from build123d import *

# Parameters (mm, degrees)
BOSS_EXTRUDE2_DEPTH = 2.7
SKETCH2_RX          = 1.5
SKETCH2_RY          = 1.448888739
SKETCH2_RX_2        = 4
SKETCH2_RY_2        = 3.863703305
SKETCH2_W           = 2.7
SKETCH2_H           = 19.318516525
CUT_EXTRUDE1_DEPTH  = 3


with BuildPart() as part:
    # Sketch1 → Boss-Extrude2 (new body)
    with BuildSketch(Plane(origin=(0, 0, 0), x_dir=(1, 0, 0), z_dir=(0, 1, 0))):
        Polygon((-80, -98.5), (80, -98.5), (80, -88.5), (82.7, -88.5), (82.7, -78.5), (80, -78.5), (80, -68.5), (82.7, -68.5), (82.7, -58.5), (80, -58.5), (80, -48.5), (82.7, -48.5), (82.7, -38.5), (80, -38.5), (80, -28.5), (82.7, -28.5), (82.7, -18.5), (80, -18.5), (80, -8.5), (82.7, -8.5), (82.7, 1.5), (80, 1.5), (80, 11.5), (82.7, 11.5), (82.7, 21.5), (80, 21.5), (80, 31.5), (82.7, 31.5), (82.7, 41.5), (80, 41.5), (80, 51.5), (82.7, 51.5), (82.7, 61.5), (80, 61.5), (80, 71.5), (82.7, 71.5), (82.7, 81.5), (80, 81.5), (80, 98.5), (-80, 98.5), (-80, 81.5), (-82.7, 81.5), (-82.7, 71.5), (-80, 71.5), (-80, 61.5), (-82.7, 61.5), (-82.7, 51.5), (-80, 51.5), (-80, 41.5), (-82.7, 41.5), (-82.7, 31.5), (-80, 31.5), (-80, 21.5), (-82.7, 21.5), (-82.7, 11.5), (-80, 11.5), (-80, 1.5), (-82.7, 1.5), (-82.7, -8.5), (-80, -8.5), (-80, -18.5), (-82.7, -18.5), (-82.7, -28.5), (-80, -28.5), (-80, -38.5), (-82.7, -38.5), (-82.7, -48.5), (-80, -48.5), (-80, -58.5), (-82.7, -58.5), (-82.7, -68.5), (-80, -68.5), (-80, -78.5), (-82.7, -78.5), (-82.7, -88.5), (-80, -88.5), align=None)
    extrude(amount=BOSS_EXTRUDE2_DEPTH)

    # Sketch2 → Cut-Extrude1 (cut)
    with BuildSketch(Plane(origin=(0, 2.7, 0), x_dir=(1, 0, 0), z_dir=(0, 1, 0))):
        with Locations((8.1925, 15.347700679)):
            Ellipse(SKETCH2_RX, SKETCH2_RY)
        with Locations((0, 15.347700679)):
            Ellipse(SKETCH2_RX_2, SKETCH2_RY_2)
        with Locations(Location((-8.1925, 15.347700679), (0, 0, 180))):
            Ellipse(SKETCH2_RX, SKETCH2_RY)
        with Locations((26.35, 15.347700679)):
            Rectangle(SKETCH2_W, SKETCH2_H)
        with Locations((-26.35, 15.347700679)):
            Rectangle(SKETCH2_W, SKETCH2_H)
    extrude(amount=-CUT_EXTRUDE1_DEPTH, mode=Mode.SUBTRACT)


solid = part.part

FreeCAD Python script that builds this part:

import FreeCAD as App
import Part
import Sketcher
from FreeCAD import Vector
Q = App.Units.Quantity

doc = App.newDocument("Part")
body = doc.addObject("PartDesign::Body", "Body")

# Sketch on XZ plane
sketch1 = body.newObject("Sketcher::SketchObject", "Sketch")
sketch1.AttachmentSupport = (doc.getObject("XZ_Plane"), [""])
sketch1.MapMode = "FlatFace"
sketch1.addGeometry([
    Part.LineSegment(Vector(-80, 98.5, 0), Vector(80, 98.5, 0)),  # 0
    Part.LineSegment(Vector(80, 98.5, 0), Vector(80, 88.5, 0)),  # 1
    Part.LineSegment(Vector(80, 88.5, 0), Vector(82.7, 88.5, 0)),  # 2
    Part.LineSegment(Vector(82.7, 88.5, 0), Vector(82.7, 78.5, 0)),  # 3
    Part.LineSegment(Vector(82.7, 78.5, 0), Vector(80, 78.5, 0)),  # 4
    Part.LineSegment(Vector(80, 78.5, 0), Vector(80, 68.5, 0)),  # 5
    Part.LineSegment(Vector(80, 68.5, 0), Vector(82.7, 68.5, 0)),  # 6
    Part.LineSegment(Vector(82.7, 68.5, 0), Vector(82.7, 58.5, 0)),  # 7
    Part.LineSegment(Vector(82.7, 58.5, 0), Vector(80, 58.5, 0)),  # 8
    Part.LineSegment(Vector(80, 58.5, 0), Vector(80, 48.5, 0)),  # 9
    Part.LineSegment(Vector(80, 48.5, 0), Vector(82.7, 48.5, 0)),  # 10
    Part.LineSegment(Vector(82.7, 48.5, 0), Vector(82.7, 38.5, 0)),  # 11
    Part.LineSegment(Vector(82.7, 38.5, 0), Vector(80, 38.5, 0)),  # 12
    Part.LineSegment(Vector(80, 38.5, 0), Vector(80, 28.5, 0)),  # 13
    Part.LineSegment(Vector(80, 28.5, 0), Vector(82.7, 28.5, 0)),  # 14
    Part.LineSegment(Vector(82.7, 28.5, 0), Vector(82.7, 18.5, 0)),  # 15
    Part.LineSegment(Vector(82.7, 18.5, 0), Vector(80, 18.5, 0)),  # 16
    Part.LineSegment(Vector(80, 18.5, 0), Vector(80, 8.5, 0)),  # 17
    Part.LineSegment(Vector(80, 8.5, 0), Vector(82.7, 8.5, 0)),  # 18
    Part.LineSegment(Vector(82.7, 8.5, 0), Vector(82.7, -1.5, 0)),  # 19
    Part.LineSegment(Vector(82.7, -1.5, 0), Vector(80, -1.5, 0)),  # 20
    Part.LineSegment(Vector(80, -1.5, 0), Vector(80, -11.5, 0)),  # 21
    Part.LineSegment(Vector(80, -11.5, 0), Vector(82.7, -11.5, 0)),  # 22
    Part.LineSegment(Vector(82.7, -11.5, 0), Vector(82.7, -21.5, 0)),  # 23
    Part.LineSegment(Vector(82.7, -21.5, 0), Vector(80, -21.5, 0)),  # 24
    Part.LineSegment(Vector(80, -21.5, 0), Vector(80, -31.5, 0)),  # 25
    Part.LineSegment(Vector(80, -31.5, 0), Vector(82.7, -31.5, 0)),  # 26
    Part.LineSegment(Vector(82.7, -31.5, 0), Vector(82.7, -41.5, 0)),  # 27
    Part.LineSegment(Vector(82.7, -41.5, 0), Vector(80, -41.5, 0)),  # 28
    Part.LineSegment(Vector(80, -41.5, 0), Vector(80, -51.5, 0)),  # 29
    Part.LineSegment(Vector(80, -51.5, 0), Vector(82.7, -51.5, 0)),  # 30
    Part.LineSegment(Vector(82.7, -51.5, 0), Vector(82.7, -61.5, 0)),  # 31
    Part.LineSegment(Vector(82.7, -61.5, 0), Vector(80, -61.5, 0)),  # 32
    Part.LineSegment(Vector(80, -61.5, 0), Vector(80, -71.5, 0)),  # 33
    Part.LineSegment(Vector(80, -71.5, 0), Vector(82.7, -71.5, 0)),  # 34
    Part.LineSegment(Vector(82.7, -71.5, 0), Vector(82.7, -81.5, 0)),  # 35
    Part.LineSegment(Vector(82.7, -81.5, 0), Vector(80, -81.5, 0)),  # 36
    Part.LineSegment(Vector(80, -81.5, 0), Vector(80, -98.5, 0)),  # 37
    Part.LineSegment(Vector(80, -98.5, 0), Vector(-80, -98.5, 0)),  # 38
    Part.LineSegment(Vector(-80, -98.5, 0), Vector(-80, -81.5, 0)),  # 39
    Part.LineSegment(Vector(-80, -81.5, 0), Vector(-82.7, -81.5, 0)),  # 40
    Part.LineSegment(Vector(-82.7, -81.5, 0), Vector(-82.7, -71.5, 0)),  # 41
    Part.LineSegment(Vector(-82.7, -71.5, 0), Vector(-80, -71.5, 0)),  # 42
    Part.LineSegment(Vector(-80, -71.5, 0), Vector(-80, -61.5, 0)),  # 43
    Part.LineSegment(Vector(-80, -61.5, 0), Vector(-82.7, -61.5, 0)),  # 44
    Part.LineSegment(Vector(-82.7, -61.5, 0), Vector(-82.7, -51.5, 0)),  # 45
    Part.LineSegment(Vector(-82.7, -51.5, 0), Vector(-80, -51.5, 0)),  # 46
    Part.LineSegment(Vector(-80, -51.5, 0), Vector(-80, -41.5, 0)),  # 47
    Part.LineSegment(Vector(-80, -41.5, 0), Vector(-82.7, -41.5, 0)),  # 48
    Part.LineSegment(Vector(-82.7, -41.5, 0), Vector(-82.7, -31.5, 0)),  # 49
    Part.LineSegment(Vector(-82.7, -31.5, 0), Vector(-80, -31.5, 0)),  # 50
    Part.LineSegment(Vector(-80, -31.5, 0), Vector(-80, -21.5, 0)),  # 51
    Part.LineSegment(Vector(-80, -21.5, 0), Vector(-82.7, -21.5, 0)),  # 52
    Part.LineSegment(Vector(-82.7, -21.5, 0), Vector(-82.7, -11.5, 0)),  # 53
    Part.LineSegment(Vector(-82.7, -11.5, 0), Vector(-80, -11.5, 0)),  # 54
    Part.LineSegment(Vector(-80, -11.5, 0), Vector(-80, -1.5, 0)),  # 55
    Part.LineSegment(Vector(-80, -1.5, 0), Vector(-82.7, -1.5, 0)),  # 56
    Part.LineSegment(Vector(-82.7, -1.5, 0), Vector(-82.7, 8.5, 0)),  # 57
    Part.LineSegment(Vector(-82.7, 8.5, 0), Vector(-80, 8.5, 0)),  # 58
    Part.LineSegment(Vector(-80, 8.5, 0), Vector(-80, 18.5, 0)),  # 59
    Part.LineSegment(Vector(-80, 18.5, 0), Vector(-82.7, 18.5, 0)),  # 60
    Part.LineSegment(Vector(-82.7, 18.5, 0), Vector(-82.7, 28.5, 0)),  # 61
    Part.LineSegment(Vector(-82.7, 28.5, 0), Vector(-80, 28.5, 0)),  # 62
    Part.LineSegment(Vector(-80, 28.5, 0), Vector(-80, 38.5, 0)),  # 63
    Part.LineSegment(Vector(-80, 38.5, 0), Vector(-82.7, 38.5, 0)),  # 64
    Part.LineSegment(Vector(-82.7, 38.5, 0), Vector(-82.7, 48.5, 0)),  # 65
    Part.LineSegment(Vector(-82.7, 48.5, 0), Vector(-80, 48.5, 0)),  # 66
    Part.LineSegment(Vector(-80, 48.5, 0), Vector(-80, 58.5, 0)),  # 67
    Part.LineSegment(Vector(-80, 58.5, 0), Vector(-82.7, 58.5, 0)),  # 68
    Part.LineSegment(Vector(-82.7, 58.5, 0), Vector(-82.7, 68.5, 0)),  # 69
    Part.LineSegment(Vector(-82.7, 68.5, 0), Vector(-80, 68.5, 0)),  # 70
    Part.LineSegment(Vector(-80, 68.5, 0), Vector(-80, 78.5, 0)),  # 71
    Part.LineSegment(Vector(-80, 78.5, 0), Vector(-82.7, 78.5, 0)),  # 72
    Part.LineSegment(Vector(-82.7, 78.5, 0), Vector(-82.7, 88.5, 0)),  # 73
    Part.LineSegment(Vector(-82.7, 88.5, 0), Vector(-80, 88.5, 0)),  # 74
    Part.LineSegment(Vector(-80, 88.5, 0), Vector(-80, 98.5, 0)),  # 75
], False)
sketch1.addConstraint([
    Sketcher.Constraint("Coincident", 0, 2, 1, 1),
    Sketcher.Constraint("Coincident", 1, 2, 2, 1),
    Sketcher.Constraint("Coincident", 2, 2, 3, 1),
    Sketcher.Constraint("Coincident", 3, 2, 4, 1),
    Sketcher.Constraint("Coincident", 4, 2, 5, 1),
    Sketcher.Constraint("Coincident", 5, 2, 6, 1),
    Sketcher.Constraint("Coincident", 6, 2, 7, 1),
    Sketcher.Constraint("Coincident", 7, 2, 8, 1),
    Sketcher.Constraint("Coincident", 8, 2, 9, 1),
    Sketcher.Constraint("Coincident", 9, 2, 10, 1),
    Sketcher.Constraint("Coincident", 10, 2, 11, 1),
    Sketcher.Constraint("Coincident", 11, 2, 12, 1),
    Sketcher.Constraint("Coincident", 12, 2, 13, 1),
    Sketcher.Constraint("Coincident", 13, 2, 14, 1),
    Sketcher.Constraint("Coincident", 14, 2, 15, 1),
    Sketcher.Constraint("Coincident", 15, 2, 16, 1),
    Sketcher.Constraint("Coincident", 16, 2, 17, 1),
    Sketcher.Constraint("Coincident", 17, 2, 18, 1),
    Sketcher.Constraint("Coincident", 18, 2, 19, 1),
    Sketcher.Constraint("Coincident", 19, 2, 20, 1),
    Sketcher.Constraint("Coincident", 20, 2, 21, 1),
    Sketcher.Constraint("Coincident", 21, 2, 22, 1),
    Sketcher.Constraint("Coincident", 22, 2, 23, 1),
    Sketcher.Constraint("Coincident", 23, 2, 24, 1),
    Sketcher.Constraint("Coincident", 24, 2, 25, 1),
    Sketcher.Constraint("Coincident", 25, 2, 26, 1),
    Sketcher.Constraint("Coincident", 26, 2, 27, 1),
    Sketcher.Constraint("Coincident", 27, 2, 28, 1),
    Sketcher.Constraint("Coincident", 28, 2, 29, 1),
    Sketcher.Constraint("Coincident", 29, 2, 30, 1),
    Sketcher.Constraint("Coincident", 30, 2, 31, 1),
    Sketcher.Constraint("Coincident", 31, 2, 32, 1),
    Sketcher.Constraint("Coincident", 32, 2, 33, 1),
    Sketcher.Constraint("Coincident", 33, 2, 34, 1),
    Sketcher.Constraint("Coincident", 34, 2, 35, 1),
    Sketcher.Constraint("Coincident", 35, 2, 36, 1),
    Sketcher.Constraint("Coincident", 36, 2, 37, 1),
    Sketcher.Constraint("Coincident", 37, 2, 38, 1),
    Sketcher.Constraint("Coincident", 38, 2, 39, 1),
    Sketcher.Constraint("Coincident", 39, 2, 40, 1),
    Sketcher.Constraint("Coincident", 40, 2, 41, 1),
    Sketcher.Constraint("Coincident", 41, 2, 42, 1),
    Sketcher.Constraint("Coincident", 42, 2, 43, 1),
    Sketcher.Constraint("Coincident", 43, 2, 44, 1),
    Sketcher.Constraint("Coincident", 44, 2, 45, 1),
    Sketcher.Constraint("Coincident", 45, 2, 46, 1),
    Sketcher.Constraint("Coincident", 46, 2, 47, 1),
    Sketcher.Constraint("Coincident", 47, 2, 48, 1),
    Sketcher.Constraint("Coincident", 48, 2, 49, 1),
    Sketcher.Constraint("Coincident", 49, 2, 50, 1),
    Sketcher.Constraint("Coincident", 50, 2, 51, 1),
    Sketcher.Constraint("Coincident", 51, 2, 52, 1),
    Sketcher.Constraint("Coincident", 52, 2, 53, 1),
    Sketcher.Constraint("Coincident", 53, 2, 54, 1),
    Sketcher.Constraint("Coincident", 54, 2, 55, 1),
    Sketcher.Constraint("Coincident", 55, 2, 56, 1),
    Sketcher.Constraint("Coincident", 56, 2, 57, 1),
    Sketcher.Constraint("Coincident", 57, 2, 58, 1),
    Sketcher.Constraint("Coincident", 58, 2, 59, 1),
    Sketcher.Constraint("Coincident", 59, 2, 60, 1),
    Sketcher.Constraint("Coincident", 60, 2, 61, 1),
    Sketcher.Constraint("Coincident", 61, 2, 62, 1),
    Sketcher.Constraint("Coincident", 62, 2, 63, 1),
    Sketcher.Constraint("Coincident", 63, 2, 64, 1),
    Sketcher.Constraint("Coincident", 64, 2, 65, 1),
    Sketcher.Constraint("Coincident", 65, 2, 66, 1),
    Sketcher.Constraint("Coincident", 66, 2, 67, 1),
    Sketcher.Constraint("Coincident", 67, 2, 68, 1),
    Sketcher.Constraint("Coincident", 68, 2, 69, 1),
    Sketcher.Constraint("Coincident", 69, 2, 70, 1),
    Sketcher.Constraint("Coincident", 70, 2, 71, 1),
    Sketcher.Constraint("Coincident", 71, 2, 72, 1),
    Sketcher.Constraint("Coincident", 72, 2, 73, 1),
    Sketcher.Constraint("Coincident", 73, 2, 74, 1),
    Sketcher.Constraint("Coincident", 74, 2, 75, 1),
    Sketcher.Constraint("Coincident", 75, 2, 0, 1),
    Sketcher.Constraint("Horizontal", 0),
    Sketcher.Constraint("Vertical", 1),
    Sketcher.Constraint("Horizontal", 2),
    Sketcher.Constraint("Vertical", 3),
    Sketcher.Constraint("Horizontal", 4),
    Sketcher.Constraint("Vertical", 5),
    Sketcher.Constraint("Horizontal", 6),
    Sketcher.Constraint("Vertical", 7),
    Sketcher.Constraint("Horizontal", 8),
    Sketcher.Constraint("Vertical", 9),
    Sketcher.Constraint("Horizontal", 10),
    Sketcher.Constraint("Vertical", 11),
    Sketcher.Constraint("Horizontal", 12),
    Sketcher.Constraint("Vertical", 13),
    Sketcher.Constraint("Horizontal", 14),
    Sketcher.Constraint("Vertical", 15),
    Sketcher.Constraint("Horizontal", 16),
    Sketcher.Constraint("Vertical", 17),
    Sketcher.Constraint("Horizontal", 18),
    Sketcher.Constraint("Vertical", 19),
    Sketcher.Constraint("Horizontal", 20),
    Sketcher.Constraint("Vertical", 21),
    Sketcher.Constraint("Horizontal", 22),
    Sketcher.Constraint("Vertical", 23),
    Sketcher.Constraint("Horizontal", 24),
    Sketcher.Constraint("Vertical", 25),
    Sketcher.Constraint("Horizontal", 26),
    Sketcher.Constraint("Vertical", 27),
    Sketcher.Constraint("Horizontal", 28),
    Sketcher.Constraint("Vertical", 29),
    Sketcher.Constraint("Horizontal", 30),
    Sketcher.Constraint("Vertical", 31),
    Sketcher.Constraint("Horizontal", 32),
    Sketcher.Constraint("Vertical", 33),
    Sketcher.Constraint("Horizontal", 34),
    Sketcher.Constraint("Vertical", 35),
    Sketcher.Constraint("Horizontal", 36),
    Sketcher.Constraint("Vertical", 37),
    Sketcher.Constraint("Horizontal", 38),
    Sketcher.Constraint("Vertical", 39),
    Sketcher.Constraint("Horizontal", 40),
    Sketcher.Constraint("Vertical", 41),
    Sketcher.Constraint("Horizontal", 42),
    Sketcher.Constraint("Vertical", 43),
    Sketcher.Constraint("Horizontal", 44),
    Sketcher.Constraint("Vertical", 45),
    Sketcher.Constraint("Horizontal", 46),
    Sketcher.Constraint("Vertical", 47),
    Sketcher.Constraint("Horizontal", 48),
    Sketcher.Constraint("Vertical", 49),
    Sketcher.Constraint("Horizontal", 50),
    Sketcher.Constraint("Vertical", 51),
    Sketcher.Constraint("Horizontal", 52),
    Sketcher.Constraint("Vertical", 53),
    Sketcher.Constraint("Horizontal", 54),
    Sketcher.Constraint("Vertical", 55),
    Sketcher.Constraint("Horizontal", 56),
    Sketcher.Constraint("Vertical", 57),
    Sketcher.Constraint("Horizontal", 58),
    Sketcher.Constraint("Vertical", 59),
    Sketcher.Constraint("Horizontal", 60),
    Sketcher.Constraint("Vertical", 61),
    Sketcher.Constraint("Horizontal", 62),
    Sketcher.Constraint("Vertical", 63),
    Sketcher.Constraint("Horizontal", 64),
    Sketcher.Constraint("Vertical", 65),
    Sketcher.Constraint("Horizontal", 66),
    Sketcher.Constraint("Vertical", 67),
    Sketcher.Constraint("Horizontal", 68),
    Sketcher.Constraint("Vertical", 69),
    Sketcher.Constraint("Horizontal", 70),
    Sketcher.Constraint("Vertical", 71),
    Sketcher.Constraint("Horizontal", 72),
    Sketcher.Constraint("Vertical", 73),
    Sketcher.Constraint("Horizontal", 74),
    Sketcher.Constraint("Vertical", 75),
    Sketcher.Constraint("Symmetric", 0, 2, 38, 2, -1, 1),
    Sketcher.Constraint("Symmetric", 36, 2, 39, 2, -2),
    Sketcher.Constraint("Symmetric", 34, 2, 41, 2, -2),
    Sketcher.Constraint("Symmetric", 32, 2, 43, 2, -2),
    Sketcher.Constraint("Symmetric", 30, 2, 45, 2, -2),
    Sketcher.Constraint("Symmetric", 28, 2, 47, 2, -2),
    Sketcher.Constraint("Symmetric", 26, 2, 49, 2, -2),
    Sketcher.Constraint("Symmetric", 24, 2, 51, 2, -2),
    Sketcher.Constraint("Symmetric", 22, 2, 53, 2, -2),
    Sketcher.Constraint("Symmetric", 20, 2, 55, 2, -2),
    Sketcher.Constraint("Symmetric", 18, 2, 57, 2, -2),
    Sketcher.Constraint("Symmetric", 16, 2, 59, 2, -2),
    Sketcher.Constraint("Symmetric", 14, 2, 61, 2, -2),
    Sketcher.Constraint("Symmetric", 12, 2, 63, 2, -2),
    Sketcher.Constraint("Symmetric", 10, 2, 65, 2, -2),
    Sketcher.Constraint("Symmetric", 8, 2, 67, 2, -2),
    Sketcher.Constraint("Symmetric", 6, 2, 69, 2, -2),
    Sketcher.Constraint("Symmetric", 4, 2, 71, 2, -2),
    Sketcher.Constraint("Symmetric", 2, 2, 73, 2, -2),
    Sketcher.Constraint("Vertical", 1, 2, 4, 2),
    Sketcher.Constraint("Vertical", 3, 2, 6, 2),
    Sketcher.Constraint("Vertical", 5, 2, 8, 2),
    Sketcher.Constraint("Vertical", 7, 2, 10, 2),
    Sketcher.Constraint("Vertical", 9, 2, 12, 2),
    Sketcher.Constraint("Vertical", 11, 2, 14, 2),
    Sketcher.Constraint("Vertical", 13, 2, 16, 2),
    Sketcher.Constraint("Vertical", 15, 2, 18, 2),
    Sketcher.Constraint("Vertical", 17, 2, 20, 2),
    Sketcher.Constraint("Vertical", 19, 2, 22, 2),
    Sketcher.Constraint("Vertical", 21, 2, 24, 2),
    Sketcher.Constraint("Vertical", 23, 2, 26, 2),
    Sketcher.Constraint("Vertical", 25, 2, 28, 2),
    Sketcher.Constraint("Vertical", 27, 2, 30, 2),
    Sketcher.Constraint("Vertical", 29, 2, 32, 2),
    Sketcher.Constraint("Vertical", 31, 2, 34, 2),
    Sketcher.Constraint("Vertical", 71, 2, 74, 2),
    Sketcher.Constraint("Equal", 1, 3),
    Sketcher.Constraint("Equal", 3, 5),
    Sketcher.Constraint("Equal", 5, 7),
    Sketcher.Constraint("Equal", 7, 9),
    Sketcher.Constraint("Equal", 9, 11),
    Sketcher.Constraint("Equal", 11, 13),
    Sketcher.Constraint("Equal", 13, 15),
    Sketcher.Constraint("Equal", 15, 17),
    Sketcher.Constraint("Equal", 17, 19),
    Sketcher.Constraint("Equal", 19, 21),
    Sketcher.Constraint("Equal", 21, 23),
    Sketcher.Constraint("Equal", 23, 25),
    Sketcher.Constraint("Equal", 25, 27),
    Sketcher.Constraint("Equal", 27, 29),
    Sketcher.Constraint("Equal", 29, 31),
    Sketcher.Constraint("Equal", 31, 33),
    Sketcher.Constraint("Equal", 33, 35),
    Sketcher.Constraint("DistanceX", 0, 1, 0, 2, Q("160 mm")),
    Sketcher.Constraint("DistanceY", 1, 2, 1, 1, Q("10 mm")),
    Sketcher.Constraint("DistanceY", 37, 2, 37, 1, Q("17 mm")),
    Sketcher.Constraint("DistanceX", 2, 1, 2, 2, Q("2.7 mm")),
])
pad1 = body.newObject("PartDesign::Pad", "Pad")
pad1.Profile = sketch1
pad1.Length = 2.7
pad1.Reversed = True

# Sketch on XZ plane
sketch2 = body.newObject("Sketcher::SketchObject", "Sketch001")
sketch2.AttachmentSupport = (doc.getObject("XZ_Plane"), [""])
sketch2.MapMode = "FlatFace"
sketch2.AttachmentOffset = App.Placement(Vector(0, 0, -2.7), App.Rotation())
sketch2.addGeometry([
    Part.Ellipse(Vector(9.6925, -15.347701, 0), Vector(8.1925, -13.898812, 0), Vector(8.1925, -15.347701, 0)),  # 0
    Part.Ellipse(Vector(4, -15.347701, 0), Vector(0, -11.483997, 0), Vector(0, -15.347701, 0)),  # 1
    Part.Ellipse(Vector(-9.6925, -15.347701, 0), Vector(-8.1925, -16.796589, 0), Vector(-8.1925, -15.347701, 0)),  # 2
    Part.LineSegment(Vector(25, -25.006959, 0), Vector(25, -5.688442, 0)),  # 3
    Part.LineSegment(Vector(25, -5.688442, 0), Vector(27.7, -5.688442, 0)),  # 4
    Part.LineSegment(Vector(27.7, -5.688442, 0), Vector(27.7, -25.006959, 0)),  # 5
    Part.LineSegment(Vector(27.7, -25.006959, 0), Vector(25, -25.006959, 0)),  # 6
    Part.LineSegment(Vector(-27.7, -25.006959, 0), Vector(-27.7, -5.688442, 0)),  # 7
    Part.LineSegment(Vector(-27.7, -5.688442, 0), Vector(-25, -5.688442, 0)),  # 8
    Part.LineSegment(Vector(-25, -5.688442, 0), Vector(-25, -25.006959, 0)),  # 9
    Part.LineSegment(Vector(-25, -25.006959, 0), Vector(-27.7, -25.006959, 0)),  # 10
], False)
sketch2.addConstraint([
    Sketcher.Constraint("Block", 0),
    Sketcher.Constraint("Block", 1),
    Sketcher.Constraint("Block", 2),
    Sketcher.Constraint("Coincident", 3, 2, 4, 1),
    Sketcher.Constraint("Coincident", 4, 2, 5, 1),
    Sketcher.Constraint("Coincident", 5, 2, 6, 1),
    Sketcher.Constraint("Coincident", 6, 2, 3, 1),
    Sketcher.Constraint("Coincident", 7, 2, 8, 1),
    Sketcher.Constraint("Coincident", 8, 2, 9, 1),
    Sketcher.Constraint("Coincident", 9, 2, 10, 1),
    Sketcher.Constraint("Coincident", 10, 2, 7, 1),
    Sketcher.Constraint("Vertical", 3),
    Sketcher.Constraint("Horizontal", 4),
    Sketcher.Constraint("Vertical", 5),
    Sketcher.Constraint("Horizontal", 6),
    Sketcher.Constraint("Vertical", 7),
    Sketcher.Constraint("Horizontal", 8),
    Sketcher.Constraint("Vertical", 9),
    Sketcher.Constraint("Horizontal", 10),
    Sketcher.Constraint("Symmetric", 4, 2, 7, 2, -2),
    Sketcher.Constraint("Symmetric", 6, 2, 9, 2, -2),
    Sketcher.Constraint("DistanceX", 4, 1, 4, 2, Q("2.7 mm")),
    Sketcher.Constraint("DistanceX", -1, 1, 3, 2, Q("25 mm")),
    Sketcher.Constraint("DistanceY", 3, 1, 3, 2, Q("19.318517 mm")),
    Sketcher.Constraint("DistanceY", 5, 2, -1, 1, Q("25.006959 mm")),
])
pocket1 = body.newObject("PartDesign::Pocket", "Pocket")
pocket1.Profile = sketch2
pocket1.Length = 3
pocket1.Reversed = True

doc.recompute()
